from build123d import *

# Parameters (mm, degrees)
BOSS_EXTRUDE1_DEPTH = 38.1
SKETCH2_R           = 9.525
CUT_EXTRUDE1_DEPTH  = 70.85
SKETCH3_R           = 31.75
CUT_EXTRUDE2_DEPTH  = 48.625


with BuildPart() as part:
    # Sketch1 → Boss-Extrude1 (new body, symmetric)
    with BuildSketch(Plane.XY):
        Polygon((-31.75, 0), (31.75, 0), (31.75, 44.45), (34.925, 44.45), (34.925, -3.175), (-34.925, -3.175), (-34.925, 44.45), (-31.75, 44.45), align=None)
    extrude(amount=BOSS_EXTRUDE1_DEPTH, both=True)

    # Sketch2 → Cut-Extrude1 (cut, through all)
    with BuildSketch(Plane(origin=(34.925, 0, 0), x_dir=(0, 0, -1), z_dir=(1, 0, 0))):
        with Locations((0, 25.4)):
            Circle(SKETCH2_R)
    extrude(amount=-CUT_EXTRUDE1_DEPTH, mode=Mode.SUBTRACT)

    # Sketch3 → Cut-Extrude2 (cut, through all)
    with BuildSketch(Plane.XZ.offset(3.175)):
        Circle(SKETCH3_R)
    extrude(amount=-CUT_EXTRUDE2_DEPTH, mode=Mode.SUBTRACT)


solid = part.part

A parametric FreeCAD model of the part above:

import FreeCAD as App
import Part
import Sketcher

V = App.Vector
Q = App.Units.Quantity


def add_polygon(sketch, points):
    """Adds a closed chain of lines whose ends are joined by coincident constraints."""
    first, n = sketch.GeometryCount, len(points)
    for a, b in zip(points, points[1:] + points[:1]):
        sketch.addGeometry(Part.LineSegment(App.Vector(*a, 0), App.Vector(*b, 0)), False)
    for i in range(n):
        sketch.addConstraint(Sketcher.Constraint("Coincident", first + i, 2, first + (i + 1) % n, 1))

doc = App.newDocument("Part")
body = doc.addObject("PartDesign::Body", "Body")

sketch1 = body.newObject("Sketcher::SketchObject", "Sketch")
sketch1.AttachmentSupport = (doc.getObject("XY_Plane"), [""])
sketch1.MapMode = "FlatFace"
add_polygon(sketch1, [(31.75, 0), (-31.75, 0), (-31.75, 44.45), (-34.925, 44.45), (-34.925, -3.175), (34.925, -3.175), (34.925, 44.45), (31.75, 44.45)])
sketch1.addConstraint(Sketcher.Constraint("Horizontal", 0))
sketch1.addConstraint(Sketcher.Constraint("Vertical", 1))
sketch1.addConstraint(Sketcher.Constraint("Horizontal", 2))
sketch1.addConstraint(Sketcher.Constraint("Vertical", 3))
sketch1.addConstraint(Sketcher.Constraint("Horizontal", 4))
sketch1.addConstraint(Sketcher.Constraint("Vertical", 5))
sketch1.addConstraint(Sketcher.Constraint("Horizontal", 6))
sketch1.addConstraint(Sketcher.Constraint("Vertical", 7))
sketch1.addConstraint(Sketcher.Constraint("Symmetric", 0, 2, 7, 2, -1, 1))
sketch1.addConstraint(Sketcher.Constraint("Symmetric", 2, 2, 5, 2, -2))
sketch1.addConstraint(Sketcher.Constraint("DistanceX", 0, 2, 0, 1, Q("2.5 in")))
sketch1.addConstraint(Sketcher.Constraint("DistanceX", 4, 1, 4, 2, Q("2.75 in")))
sketch1.addConstraint(Sketcher.Constraint("DistanceY", 1, 1, 1, 2, Q("1.75 in")))
sketch1.addConstraint(Sketcher.Constraint("DistanceY", 3, 2, 3, 1, Q("1.875 in")))
pad1 = body.newObject("PartDesign::Pad", "Pad")
pad1.Profile = sketch1
pad1.Length = Q("3 in")
pad1.Midplane = True

sketch2 = body.newObject("Sketcher::SketchObject", "Sketch001")
sketch2.AttachmentSupport = (doc.getObject("YZ_Plane"), [""])
sketch2.MapMode = "FlatFace"
sketch2.AttachmentOffset = App.Placement(V(0, 0, 1.375 * 25.4), App.Rotation())
sketch2.addGeometry(Part.Circle(V(25.4, 0, 0), V(0, 0, 1), 9.525), False)
sketch2.addConstraint(Sketcher.Constraint("PointOnObject", 0, 3, -1))
sketch2.addConstraint(Sketcher.Constraint("Diameter", 0, Q("0.75 in")))
sketch2.addConstraint(Sketcher.Constraint("DistanceX", -1, 1, 0, 3, Q("1 in")))
pocket1 = body.newObject("PartDesign::Pocket", "Pocket")
pocket1.Profile = sketch2
pocket1.Type = "ThroughAll"

sketch3 = body.newObject("Sketcher::SketchObject", "Sketch002")
sketch3.AttachmentSupport = (doc.getObject("XZ_Plane"), [""])
sketch3.MapMode = "FlatFace"
sketch3.AttachmentOffset = App.Placement(V(0, 0, 0.125 * 25.4), App.Rotation())
sketch3.addGeometry(Part.Circle(V(0, 0, 0), V(0, 0, 1), 31.75), False)
sketch3.addConstraint(Sketcher.Constraint("Coincident", 0, 3, -1, 1))
sketch3.addConstraint(Sketcher.Constraint("Diameter", 0, Q("2.5 in")))
pocket2 = body.newObject("PartDesign::Pocket", "Pocket001")
pocket2.Profile = sketch3
pocket2.Type = "ThroughAll"

doc.recompute()
